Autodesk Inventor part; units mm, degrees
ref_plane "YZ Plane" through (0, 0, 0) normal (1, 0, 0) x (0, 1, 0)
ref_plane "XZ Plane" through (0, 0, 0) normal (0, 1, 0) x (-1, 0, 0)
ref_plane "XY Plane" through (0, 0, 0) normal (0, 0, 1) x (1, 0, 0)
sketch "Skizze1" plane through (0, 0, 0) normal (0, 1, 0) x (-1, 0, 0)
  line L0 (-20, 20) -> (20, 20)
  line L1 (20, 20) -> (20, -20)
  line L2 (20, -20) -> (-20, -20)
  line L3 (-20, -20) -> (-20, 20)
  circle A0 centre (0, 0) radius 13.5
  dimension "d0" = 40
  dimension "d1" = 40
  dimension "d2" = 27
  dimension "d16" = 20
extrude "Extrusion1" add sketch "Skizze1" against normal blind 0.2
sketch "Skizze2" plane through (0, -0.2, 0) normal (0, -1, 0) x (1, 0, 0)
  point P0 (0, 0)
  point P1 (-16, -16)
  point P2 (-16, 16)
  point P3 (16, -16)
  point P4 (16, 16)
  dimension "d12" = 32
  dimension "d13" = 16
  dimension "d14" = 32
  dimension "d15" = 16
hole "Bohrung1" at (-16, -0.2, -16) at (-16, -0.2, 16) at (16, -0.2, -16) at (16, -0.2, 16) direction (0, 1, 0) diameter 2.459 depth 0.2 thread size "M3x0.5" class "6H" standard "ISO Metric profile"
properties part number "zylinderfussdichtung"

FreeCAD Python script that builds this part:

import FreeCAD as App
import Part
import Sketcher
from FreeCAD import Vector


def add_polygon(sketch, points):
    """Adds a closed chain of lines whose ends are joined by coincident constraints."""
    first, n = sketch.GeometryCount, len(points)
    for a, b in zip(points, points[1:] + points[:1]):
        sketch.addGeometry(Part.LineSegment(App.Vector(*a, 0), App.Vector(*b, 0)), False)
    for i in range(n):
        sketch.addConstraint(Sketcher.Constraint("Coincident", first + i, 2, first + (i + 1) % n, 1))

doc = App.newDocument("Part")
body = doc.addObject("PartDesign::Body", "Body")

# Sketch on XZ plane
sketch1 = doc.addObject("Sketcher::SketchObject", "Sketch")
body.addObject(sketch1)
sketch1.AttachmentSupport = (doc.XZ_Plane, [""])
sketch1.MapMode = "FlatFace"
add_polygon(sketch1, [(-20, 20), (20, 20), (20, -20), (-20, -20)])  # lines 0-3
sketch1.addGeometry(Part.Circle(Vector(0, 0, 0), Vector(0, 0, 1), 14), False)  # 4
sketch1.addConstraint(Sketcher.Constraint("Horizontal", 0))
sketch1.addConstraint(Sketcher.Constraint("Vertical", 1))
sketch1.addConstraint(Sketcher.Constraint("Horizontal", 2))
sketch1.addConstraint(Sketcher.Constraint("Vertical", 3))
sketch1.addConstraint(Sketcher.Constraint("Coincident", 4, 3, -1, 1))
sketch1.addConstraint(Sketcher.Constraint("Symmetric", 0, 2, 2, 2, -1, 1))
sketch1.addConstraint(Sketcher.Constraint("Equal", 2, 1))
sketch1.addConstraint(Sketcher.Constraint("Diameter", 4, 27.0))
sketch1.addConstraint(Sketcher.Constraint("DistanceX", 0, 1, 0, 2, 40.0))
pad1 = doc.addObject("PartDesign::Pad", "Pad")
body.addObject(pad1)
pad1.Profile = sketch1
pad1.Length = 0.2

# Sketch on XZ plane
sketch2 = doc.addObject("Sketcher::SketchObject", "Sketch001")
body.addObject(sketch2)
sketch2.AttachmentSupport = (doc.XZ_Plane, [""])
sketch2.MapMode = "FlatFace"
sketch2.AttachmentOffset = App.Placement(Vector(0, 0, 0.2), App.Rotation())
sketch2.addGeometry(Part.Circle(Vector(-16, -16, 0), Vector(0, 0, 1), 1.2), False)
sketch2.addGeometry(Part.Circle(Vector(-16, 16, 0), Vector(0, 0, 1), 1.2), False)
sketch2.addGeometry(Part.Circle(Vector(16, -16, 0), Vector(0, 0, 1), 1.2), False)
sketch2.addGeometry(Part.Circle(Vector(16, 16, 0), Vector(0, 0, 1), 1.2), False)
sketch2.addConstraint(Sketcher.Constraint("Equal", 0, 1))
sketch2.addConstraint(Sketcher.Constraint("Equal", 1, 2))
sketch2.addConstraint(Sketcher.Constraint("Equal", 2, 3))
sketch2.addConstraint(Sketcher.Constraint("Symmetric", 1, 3, 2, 3, -1, 1))
sketch2.addConstraint(Sketcher.Constraint("Symmetric", 0, 3, 3, 3, -1, 1))
sketch2.addConstraint(Sketcher.Constraint("Symmetric", 0, 3, 2, 3, -2))
sketch2.addConstraint(Sketcher.Constraint("Diameter", 0, 2.459))
sketch2.addConstraint(Sketcher.Constraint("DistanceX", 0, 3, -1, 1, 16.0))
sketch2.addConstraint(Sketcher.Constraint("DistanceY", 0, 3, -1, 1, 16.0))
doc.recompute()
hole = doc.addObject("PartDesign::Hole", "Hole")
body.addObject(hole)
hole.Profile = sketch2
hole.ThreadType = "None"
hole.Diameter = 2.459
hole.DepthType = "Dimension"
hole.Depth = 0.2
hole.DrillPoint = "Flat"

doc.recompute()
